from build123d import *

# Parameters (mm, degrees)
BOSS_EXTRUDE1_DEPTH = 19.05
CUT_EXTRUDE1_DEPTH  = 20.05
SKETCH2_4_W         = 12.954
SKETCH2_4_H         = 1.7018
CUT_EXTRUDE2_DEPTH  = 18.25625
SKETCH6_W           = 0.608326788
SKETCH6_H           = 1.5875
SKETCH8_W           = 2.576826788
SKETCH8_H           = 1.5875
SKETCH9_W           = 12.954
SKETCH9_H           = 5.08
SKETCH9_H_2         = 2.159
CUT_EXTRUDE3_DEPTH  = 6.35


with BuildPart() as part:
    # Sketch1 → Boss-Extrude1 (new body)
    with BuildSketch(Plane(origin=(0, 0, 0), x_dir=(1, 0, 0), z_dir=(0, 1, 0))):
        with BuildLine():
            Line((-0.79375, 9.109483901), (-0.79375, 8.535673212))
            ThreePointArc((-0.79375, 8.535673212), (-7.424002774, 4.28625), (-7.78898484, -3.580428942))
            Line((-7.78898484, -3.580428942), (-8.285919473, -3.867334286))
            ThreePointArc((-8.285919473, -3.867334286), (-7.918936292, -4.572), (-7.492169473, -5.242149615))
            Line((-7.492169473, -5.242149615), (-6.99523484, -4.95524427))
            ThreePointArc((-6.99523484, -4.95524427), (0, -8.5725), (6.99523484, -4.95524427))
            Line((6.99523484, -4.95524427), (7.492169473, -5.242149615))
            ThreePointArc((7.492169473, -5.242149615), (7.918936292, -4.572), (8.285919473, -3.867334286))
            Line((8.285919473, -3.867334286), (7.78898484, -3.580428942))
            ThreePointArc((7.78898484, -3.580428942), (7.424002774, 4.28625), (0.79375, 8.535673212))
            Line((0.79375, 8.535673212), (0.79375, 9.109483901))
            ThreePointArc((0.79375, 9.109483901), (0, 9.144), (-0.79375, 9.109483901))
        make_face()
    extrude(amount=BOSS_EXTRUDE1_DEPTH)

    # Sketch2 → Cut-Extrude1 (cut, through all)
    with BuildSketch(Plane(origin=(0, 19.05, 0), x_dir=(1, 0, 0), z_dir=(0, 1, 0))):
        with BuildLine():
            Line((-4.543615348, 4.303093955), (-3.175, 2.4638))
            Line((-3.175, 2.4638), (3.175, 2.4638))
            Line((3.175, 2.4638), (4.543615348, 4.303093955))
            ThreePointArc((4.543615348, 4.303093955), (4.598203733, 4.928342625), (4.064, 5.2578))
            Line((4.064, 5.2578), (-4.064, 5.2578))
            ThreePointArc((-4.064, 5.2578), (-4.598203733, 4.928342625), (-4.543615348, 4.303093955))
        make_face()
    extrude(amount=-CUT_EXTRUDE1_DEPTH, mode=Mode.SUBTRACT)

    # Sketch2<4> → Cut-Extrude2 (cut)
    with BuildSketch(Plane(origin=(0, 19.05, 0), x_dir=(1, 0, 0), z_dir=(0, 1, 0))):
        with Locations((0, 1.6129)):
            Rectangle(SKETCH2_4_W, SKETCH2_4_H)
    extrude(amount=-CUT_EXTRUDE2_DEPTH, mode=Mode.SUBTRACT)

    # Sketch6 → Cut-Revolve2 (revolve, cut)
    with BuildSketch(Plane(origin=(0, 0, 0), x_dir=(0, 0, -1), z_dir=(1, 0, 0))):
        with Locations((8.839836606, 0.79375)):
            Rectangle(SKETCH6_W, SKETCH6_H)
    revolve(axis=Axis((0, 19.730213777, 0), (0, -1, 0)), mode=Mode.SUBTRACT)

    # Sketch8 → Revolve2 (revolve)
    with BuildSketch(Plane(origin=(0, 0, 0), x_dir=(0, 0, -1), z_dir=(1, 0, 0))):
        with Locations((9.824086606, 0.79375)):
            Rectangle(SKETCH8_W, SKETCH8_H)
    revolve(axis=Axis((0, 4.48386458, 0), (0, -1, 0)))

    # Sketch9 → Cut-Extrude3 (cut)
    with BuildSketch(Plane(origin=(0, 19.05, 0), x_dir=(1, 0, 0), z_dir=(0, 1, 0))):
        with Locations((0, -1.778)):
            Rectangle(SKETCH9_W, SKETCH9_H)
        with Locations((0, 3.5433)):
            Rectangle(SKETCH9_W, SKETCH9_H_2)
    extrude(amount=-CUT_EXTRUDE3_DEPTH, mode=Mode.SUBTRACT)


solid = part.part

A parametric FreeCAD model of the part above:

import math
import FreeCAD as App
import Part
import Sketcher
from FreeCAD import Vector
Q = App.Units.Quantity

doc = App.newDocument("Part")
params = doc.addObject("Spreadsheet::Sheet", "Params")
for row, (alias, value) in enumerate([
    ("sketch1_radius", "0.36 in"),
    ("pad1_length", "0.75 in"),
    ("sketch2_width", "0.25 in"),
    ("sketch2_width2", "0.32 in"),
    ("sketch3_width", "0.51 in"),
    ("sketch3_height", "0.067 in"),
    ("pocket2_length", "0.71875 in"),
    ("sketch4_width", "0.0625 in"),
    ("groove_angle", "360 deg"),
    ("sketch5_width", "0.0625 in"),
    ("revolution_angle", "360 deg"),
    ("sketch6_height", "0.2 in"),
    ("sketch6_width", "0.51 in"),
    ("sketch6_height2", "0.085 in"),
    ("pocket3_length", "0.25 in"),
], start=1):
    params.set(f"A{row}", alias)
    params.set(f"B{row}", "=" + value)
    params.setAlias(f"B{row}", alias)

body = doc.addObject("PartDesign::Body", "Body")

sketch1 = body.newObject("Sketcher::SketchObject", "Sketch")
sketch1.AttachmentSupport = (doc.getObject("XZ_Plane"), [""])
sketch1.MapMode = "FlatFace"
sketch1.addGeometry(Part.LineSegment(Vector(-0.8, -9.1, 0), Vector(-0.8, -8.5, 0)), False)
sketch1.addGeometry(Part.ArcOfCircle(Part.Circle(Vector(0, 0, 0), Vector(0, 0, 1), 8.6), math.radians(155), math.radians(265)), False)
sketch1.addGeometry(Part.LineSegment(Vector(-7.8, 3.6, 0), Vector(-8.3, 3.9, 0)), False)
sketch1.addGeometry(Part.ArcOfCircle(Part.Circle(Vector(0, 0, 0), Vector(0, 0, 1), 9.1), math.radians(145.02), math.radians(154.98)), False)
sketch1.addGeometry(Part.LineSegment(Vector(-7.5, 5.2, 0), Vector(-7, 5, 0)), False)
sketch1.addGeometry(Part.ArcOfCircle(Part.Circle(Vector(0, 0, 0), Vector(0, 0, 1), 8.6), math.radians(35), math.radians(145)), False)
sketch1.addGeometry(Part.LineSegment(Vector(7, 5, 0), Vector(7.5, 5.2, 0)), False)
sketch1.addGeometry(Part.ArcOfCircle(Part.Circle(Vector(0, 0, 0), Vector(0, 0, 1), 9.1), math.radians(25.02), math.radians(34.98)), False)
sketch1.addGeometry(Part.LineSegment(Vector(8.3, 3.9, 0), Vector(7.8, 3.6, 0)), False)
sketch1.addGeometry(Part.ArcOfCircle(Part.Circle(Vector(0, 0, 0), Vector(0, 0, 1), 8.6), math.radians(-85), math.radians(25)), False)
sketch1.addGeometry(Part.LineSegment(Vector(0.8, -8.5, 0), Vector(0.8, -9.1, 0)), False)
sketch1.addGeometry(Part.ArcOfCircle(Part.Circle(Vector(0, 0, 0), Vector(0, 0, 1), 9.1), math.radians(-94.98), math.radians(-85.02)), False)
sketch1.addConstraint(Sketcher.Constraint("Coincident", 0, 2, 1, 2))
sketch1.addConstraint(Sketcher.Constraint("Coincident", 1, 1, 2, 1))
sketch1.addConstraint(Sketcher.Constraint("Coincident", 2, 2, 3, 2))
sketch1.addConstraint(Sketcher.Constraint("Coincident", 3, 1, 4, 1))
sketch1.addConstraint(Sketcher.Constraint("Coincident", 4, 2, 5, 2))
sketch1.addConstraint(Sketcher.Constraint("Coincident", 5, 1, 6, 1))
sketch1.addConstraint(Sketcher.Constraint("Coincident", 6, 2, 7, 2))
sketch1.addConstraint(Sketcher.Constraint("Coincident", 7, 1, 8, 1))
sketch1.addConstraint(Sketcher.Constraint("Coincident", 8, 2, 9, 2))
sketch1.addConstraint(Sketcher.Constraint("Coincident", 9, 1, 10, 1))
sketch1.addConstraint(Sketcher.Constraint("Coincident", 10, 2, 11, 2))
sketch1.addConstraint(Sketcher.Constraint("Coincident", 11, 1, 0, 1))
sketch1.addConstraint(Sketcher.Constraint("Vertical", 0))
sketch1.addConstraint(Sketcher.Constraint("Vertical", 10))
sketch1.addConstraint(Sketcher.Constraint("Coincident", 1, 3, -1, 1))
sketch1.addConstraint(Sketcher.Constraint("Coincident", 3, 3, -1, 1))
sketch1.addConstraint(Sketcher.Constraint("Coincident", 5, 3, -1, 1))
sketch1.addConstraint(Sketcher.Constraint("Coincident", 7, 3, -1, 1))
sketch1.addConstraint(Sketcher.Constraint("Coincident", 9, 3, -1, 1))
sketch1.addConstraint(Sketcher.Constraint("Coincident", 11, 3, -1, 1))
sketch1.addConstraint(Sketcher.Constraint("Equal", 1, 5))
sketch1.addConstraint(Sketcher.Constraint("Equal", 3, 7))
sketch1.addConstraint(Sketcher.Constraint("Equal", 5, 9))
sketch1.addConstraint(Sketcher.Constraint("Equal", 7, 11))
sketch1.addConstraint(Sketcher.Constraint("Parallel", 2, 4))
sketch1.addConstraint(Sketcher.Constraint("Parallel", 6, 8))
sketch1.addConstraint(Sketcher.Constraint("Horizontal", 4, 2, 5, 1))
sketch1.addConstraint(Sketcher.Constraint("Horizontal", 3, 1, 6, 2))
sketch1.addConstraint(Sketcher.Constraint("Horizontal", 2, 2, 7, 1))
sketch1.addConstraint(Sketcher.Constraint("Horizontal", 0, 2, 9, 1))
sketch1.addConstraint(Sketcher.Constraint("Equal", 2, 4))
sketch1.addConstraint(Sketcher.Constraint("Radius", 3, Q("0.36 in")))
sketch1.addConstraint(Sketcher.Constraint("Angle", 2, Q("150 deg")))
sketch1.addConstraint(Sketcher.Constraint("Radius", 1, Q("0.3375 in")))
sketch1.addConstraint(Sketcher.Constraint("DistanceX", 0, 2, -1, 1, Q("0.03125 in")))
sketch1.addConstraint(Sketcher.Constraint("DistanceX", 2, 2, 3, 1, Q("0.03125 in")))
sketch1.setExpression("Constraints[31]", "Params.sketch1_radius")
pad1 = body.newObject("PartDesign::Pad", "Pad")
pad1.Profile = sketch1
pad1.setExpression("Length", "Params.pad1_length")
pad1.Reversed = True

sketch2 = body.newObject("Sketcher::SketchObject", "Sketch001")
sketch2.AttachmentSupport = (doc.getObject("XZ_Plane"), [""])
sketch2.MapMode = "FlatFace"
sketch2.AttachmentOffset = App.Placement(Vector(0, 0, -0.75 * 25.4), App.Rotation())
sketch2.addGeometry(Part.LineSegment(Vector(-4.5, -4.3, 0), Vector(-3.2, -2.5, 0)), False)
sketch2.addGeometry(Part.LineSegment(Vector(-3.2, -2.5, 0), Vector(3.2, -2.5, 0)), False)
sketch2.addGeometry(Part.LineSegment(Vector(3.2, -2.5, 0), Vector(4.5, -4.3, 0)), False)
sketch2.addGeometry(Part.ArcOfCircle(Part.Circle(Vector(4.1, -4.7, 0), Vector(0, 0, 1), 0.6), math.radians(-90), math.radians(37)), False)
sketch2.addGeometry(Part.LineSegment(Vector(4.1, -5.3, 0), Vector(-4.1, -5.3, 0)), False)
sketch2.addGeometry(Part.ArcOfCircle(Part.Circle(Vector(-4.1, -4.7, 0), Vector(0, 0, 1), 0.6), math.radians(143), math.radians(270)), False)
sketch2.addConstraint(Sketcher.Constraint("Coincident", 0, 2, 1, 1))
sketch2.addConstraint(Sketcher.Constraint("Coincident", 1, 2, 2, 1))
sketch2.addConstraint(Sketcher.Constraint("Tangent", 2, 2, 3, 2))
sketch2.addConstraint(Sketcher.Constraint("Tangent", 3, 1, 4, 1))
sketch2.addConstraint(Sketcher.Constraint("Tangent", 4, 2, 5, 2))
sketch2.addConstraint(Sketcher.Constraint("Tangent", 5, 1, 0, 1))
sketch2.addConstraint(Sketcher.Constraint("Horizontal", 1))
sketch2.addConstraint(Sketcher.Constraint("Horizontal", 4))
sketch2.addConstraint(Sketcher.Constraint("Equal", 3, 5))
sketch2.addConstraint(Sketcher.Constraint("Symmetric", 2, 2, 5, 1, -2))
sketch2.addConstraint(Sketcher.Constraint("DistanceX", 1, 1, 1, 2, Q("0.25 in")))
sketch2.addConstraint(Sketcher.Constraint("DistanceX", 4, 2, 4, 1, Q("0.32 in")))
sketch2.addConstraint(Sketcher.Constraint("DistanceY", 3, 1, 1, 2, Q("0.11 in")))
sketch2.addConstraint(Sketcher.Constraint("DistanceY", 0, 2, -1, 1, Q("0.097 in")))
sketch2.addConstraint(Sketcher.Constraint("Radius", 3, 0.597825))
sketch2.setExpression("Constraints[10]", "Params.sketch2_width")
sketch2.setExpression("Constraints[11]", "Params.sketch2_width2")
pocket1 = body.newObject("PartDesign::Pocket", "Pocket")
pocket1.Profile = sketch2
pocket1.Type = "ThroughAll"
pocket1.Reversed = True

sketch3 = body.newObject("Sketcher::SketchObject", "Sketch002")
sketch3.AttachmentSupport = (doc.getObject("XZ_Plane"), [""])
sketch3.MapMode = "FlatFace"
sketch3.AttachmentOffset = App.Placement(Vector(0, 0, -0.75 * 25.4), App.Rotation())
sketch3.addGeometry(Part.LineSegment(Vector(-6.5, -2.5, 0), Vector(-6.5, -0.8, 0)), False)
sketch3.addGeometry(Part.LineSegment(Vector(-6.5, -0.8, 0), Vector(6.5, -0.8, 0)), False)
sketch3.addGeometry(Part.LineSegment(Vector(6.5, -0.8, 0), Vector(6.5, -2.5, 0)), False)
sketch3.addGeometry(Part.LineSegment(Vector(6.5, -2.5, 0), Vector(-6.5, -2.5, 0)), False)
sketch3.addConstraint(Sketcher.Constraint("Coincident", 0, 2, 1, 1))
sketch3.addConstraint(Sketcher.Constraint("Coincident", 1, 2, 2, 1))
sketch3.addConstraint(Sketcher.Constraint("Coincident", 2, 2, 3, 1))
sketch3.addConstraint(Sketcher.Constraint("Coincident", 3, 2, 0, 1))
sketch3.addConstraint(Sketcher.Constraint("Vertical", 0))
sketch3.addConstraint(Sketcher.Constraint("Horizontal", 1))
sketch3.addConstraint(Sketcher.Constraint("Vertical", 2))
sketch3.addConstraint(Sketcher.Constraint("Horizontal", 3))
sketch3.addConstraint(Sketcher.Constraint("DistanceX", 1, 1, 1, 2, Q("0.51 in")))
sketch3.addConstraint(Sketcher.Constraint("DistanceY", 0, 1, 0, 2, Q("0.067 in")))
sketch3.addConstraint(Sketcher.Constraint("DistanceY", 0, 2, -1, 1, Q("0.03 in")))
sketch3.addConstraint(Sketcher.Constraint("DistanceX", 0, 2, -1, 1, Q("0.255 in")))
sketch3.setExpression("Constraints[8]", "Params.sketch3_width")
sketch3.setExpression("Constraints[9]", "Params.sketch3_height")
pocket2 = body.newObject("PartDesign::Pocket", "Pocket001")
pocket2.Profile = sketch3
pocket2.setExpression("Length", "Params.pocket2_length")
pocket2.Reversed = True

sketch4 = body.newObject("Sketcher::SketchObject", "Sketch003")
sketch4.AttachmentSupport = (doc.getObject("YZ_Plane"), [""])
sketch4.MapMode = "FlatFace"
sketch4.addGeometry(Part.LineSegment(Vector(1.6, -8.5, 0), Vector(0, -8.5, 0)), False)
sketch4.addGeometry(Part.LineSegment(Vector(0, -8.5, 0), Vector(0, -9.1, 0)), False)
sketch4.addGeometry(Part.LineSegment(Vector(0, -9.1, 0), Vector(1.6, -9.1, 0)), False)
sketch4.addGeometry(Part.LineSegment(Vector(1.6, -9.1, 0), Vector(1.6, -8.5, 0)), False)
sketch4.addConstraint(Sketcher.Constraint("Coincident", 0, 2, 1, 1))
sketch4.addConstraint(Sketcher.Constraint("Coincident", 1, 2, 2, 1))
sketch4.addConstraint(Sketcher.Constraint("Coincident", 2, 2, 3, 1))
sketch4.addConstraint(Sketcher.Constraint("Coincident", 3, 2, 0, 1))
sketch4.addConstraint(Sketcher.Constraint("Horizontal", 0))
sketch4.addConstraint(Sketcher.Constraint("Vertical", 1))
sketch4.addConstraint(Sketcher.Constraint("Horizontal", 2))
sketch4.addConstraint(Sketcher.Constraint("Vertical", 3))
sketch4.addConstraint(Sketcher.Constraint("PointOnObject", 0, 2, -2))
sketch4.addConstraint(Sketcher.Constraint("DistanceX", 0, 2, 0, 1, Q("0.0625 in")))
sketch4.addConstraint(Sketcher.Constraint("DistanceY", 1, 2, -1, 1, Q("0.36 in")))
sketch4.addConstraint(Sketcher.Constraint("DistanceY", 1, 2, 1, 1, 0.608327))
sketch4.setExpression("Constraints[9]", "Params.sketch4_width")
groove = body.newObject("PartDesign::Groove", "Groove")
groove.Profile = sketch4
groove.ReferenceAxis = (sketch4, ["H_Axis"])
groove.setExpression("Angle", "Params.groove_angle")

sketch5 = body.newObject("Sketcher::SketchObject", "Sketch004")
sketch5.AttachmentSupport = (doc.getObject("YZ_Plane"), [""])
sketch5.MapMode = "FlatFace"
sketch5.addGeometry(Part.LineSegment(Vector(1.6, -8.5, 0), Vector(0, -8.5, 0)), False)
sketch5.addGeometry(Part.LineSegment(Vector(0, -8.5, 0), Vector(0, -11.1, 0)), False)
sketch5.addGeometry(Part.LineSegment(Vector(0, -11.1, 0), Vector(1.6, -11.1, 0)), False)
sketch5.addGeometry(Part.LineSegment(Vector(1.6, -11.1, 0), Vector(1.6, -8.5, 0)), False)
sketch5.addConstraint(Sketcher.Constraint("Coincident", 0, 2, 1, 1))
sketch5.addConstraint(Sketcher.Constraint("Coincident", 1, 2, 2, 1))
sketch5.addConstraint(Sketcher.Constraint("Coincident", 2, 2, 3, 1))
sketch5.addConstraint(Sketcher.Constraint("Coincident", 3, 2, 0, 1))
sketch5.addConstraint(Sketcher.Constraint("Horizontal", 0))
sketch5.addConstraint(Sketcher.Constraint("Vertical", 1))
sketch5.addConstraint(Sketcher.Constraint("Horizontal", 2))
sketch5.addConstraint(Sketcher.Constraint("Vertical", 3))
sketch5.addConstraint(Sketcher.Constraint("PointOnObject", 0, 2, -2))
sketch5.addConstraint(Sketcher.Constraint("DistanceX", 0, 2, 0, 1, Q("0.0625 in")))
sketch5.addConstraint(Sketcher.Constraint("DistanceY", 1, 2, -1, 1, Q("0.4375 in")))
sketch5.addConstraint(Sketcher.Constraint("DistanceY", 1, 2, 1, 1, 2.576827))
sketch5.setExpression("Constraints[9]", "Params.sketch5_width")
revolution = body.newObject("PartDesign::Revolution", "Revolution")
revolution.Profile = sketch5
revolution.ReferenceAxis = (sketch5, ["H_Axis"])
revolution.setExpression("Angle", "Params.revolution_angle")

sketch6 = body.newObject("Sketcher::SketchObject", "Sketch005")
sketch6.AttachmentSupport = (doc.getObject("XZ_Plane"), [""])
sketch6.MapMode = "FlatFace"
sketch6.AttachmentOffset = App.Placement(Vector(0, 0, -0.75 * 25.4), App.Rotation())
sketch6.addGeometry(Part.LineSegment(Vector(-6.5, -0.8, 0), Vector(-6.5, 4.3, 0)), False)
sketch6.addGeometry(Part.LineSegment(Vector(-6.5, 4.3, 0), Vector(6.5, 4.3, 0)), False)
sketch6.addGeometry(Part.LineSegment(Vector(6.5, 4.3, 0), Vector(6.5, -0.8, 0)), False)
sketch6.addGeometry(Part.LineSegment(Vector(6.5, -0.8, 0), Vector(-6.5, -0.8, 0)), False)
sketch6.addGeometry(Part.LineSegment(Vector(-6.5, -4.6, 0), Vector(-6.5, -2.5, 0)), False)
sketch6.addGeometry(Part.LineSegment(Vector(-6.5, -2.5, 0), Vector(6.5, -2.5, 0)), False)
sketch6.addGeometry(Part.LineSegment(Vector(6.5, -2.5, 0), Vector(6.5, -4.6, 0)), False)
sketch6.addGeometry(Part.LineSegment(Vector(6.5, -4.6, 0), Vector(-6.5, -4.6, 0)), False)
sketch6.addConstraint(Sketcher.Constraint("Coincident", 0, 2, 1, 1))
sketch6.addConstraint(Sketcher.Constraint("Coincident", 1, 2, 2, 1))
sketch6.addConstraint(Sketcher.Constraint("Coincident", 2, 2, 3, 1))
sketch6.addConstraint(Sketcher.Constraint("Coincident", 3, 2, 0, 1))
sketch6.addConstraint(Sketcher.Constraint("Coincident", 4, 2, 5, 1))
sketch6.addConstraint(Sketcher.Constraint("Coincident", 5, 2, 6, 1))
sketch6.addConstraint(Sketcher.Constraint("Coincident", 6, 2, 7, 1))
sketch6.addConstraint(Sketcher.Constraint("Coincident", 7, 2, 4, 1))
sketch6.addConstraint(Sketcher.Constraint("Vertical", 0))
sketch6.addConstraint(Sketcher.Constraint("Horizontal", 1))
sketch6.addConstraint(Sketcher.Constraint("Vertical", 2))
sketch6.addConstraint(Sketcher.Constraint("Horizontal", 3))
sketch6.addConstraint(Sketcher.Constraint("Vertical", 4))
sketch6.addConstraint(Sketcher.Constraint("Horizontal", 5))
sketch6.addConstraint(Sketcher.Constraint("Vertical", 6))
sketch6.addConstraint(Sketcher.Constraint("Horizontal", 7))
sketch6.addConstraint(Sketcher.Constraint("Vertical", 3, 2, 4, 2))
sketch6.addConstraint(Sketcher.Constraint("Vertical", 2, 2, 5, 2))
sketch6.addConstraint(Sketcher.Constraint("DistanceY", 0, 1, 0, 2, Q("0.2 in")))
sketch6.addConstraint(Sketcher.Constraint("DistanceX", 1, 1, 1, 2, Q("0.51 in")))
sketch6.addConstraint(Sketcher.Constraint("DistanceY", 4, 1, 4, 2, Q("0.085 in")))
sketch6.addConstraint(Sketcher.Constraint("DistanceY", -1, 1, 0, 2, Q("0.17 in")))
sketch6.addConstraint(Sketcher.Constraint("DistanceX", 0, 2, -1, 1, Q("0.255 in")))
sketch6.addConstraint(Sketcher.Constraint("DistanceY", 4, 2, -1, 1, Q("0.097 in")))
sketch6.setExpression("Constraints[18]", "Params.sketch6_height")
sketch6.setExpression("Constraints[19]", "Params.sketch6_width")
sketch6.setExpression("Constraints[20]", "Params.sketch6_height2")
pocket3 = body.newObject("PartDesign::Pocket", "Pocket002")
pocket3.Profile = sketch6
pocket3.setExpression("Length", "Params.pocket3_length")
pocket3.Reversed = True

doc.recompute()
